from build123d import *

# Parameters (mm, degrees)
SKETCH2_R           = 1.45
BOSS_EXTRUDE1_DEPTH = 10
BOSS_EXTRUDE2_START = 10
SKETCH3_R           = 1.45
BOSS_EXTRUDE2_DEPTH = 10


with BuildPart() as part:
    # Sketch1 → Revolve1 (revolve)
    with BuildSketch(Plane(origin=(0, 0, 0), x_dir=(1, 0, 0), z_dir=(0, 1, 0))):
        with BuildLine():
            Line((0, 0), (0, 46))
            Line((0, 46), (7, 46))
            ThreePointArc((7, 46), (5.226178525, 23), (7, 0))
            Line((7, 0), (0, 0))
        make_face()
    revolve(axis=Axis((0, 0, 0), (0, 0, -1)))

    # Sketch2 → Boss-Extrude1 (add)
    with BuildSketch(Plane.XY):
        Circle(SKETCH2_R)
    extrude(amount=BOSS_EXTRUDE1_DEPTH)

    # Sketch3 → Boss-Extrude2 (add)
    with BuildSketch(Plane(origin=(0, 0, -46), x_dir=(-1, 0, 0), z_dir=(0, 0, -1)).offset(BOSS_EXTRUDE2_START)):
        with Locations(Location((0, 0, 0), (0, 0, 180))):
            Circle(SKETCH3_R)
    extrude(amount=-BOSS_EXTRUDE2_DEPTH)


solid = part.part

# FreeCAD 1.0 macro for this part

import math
import FreeCAD as App
import Part
import Sketcher

V = App.Vector
Q = App.Units.Quantity

doc = App.newDocument("Part")
params = doc.addObject("Spreadsheet::Sheet", "Params")
for row, (alias, value) in enumerate([
    ("sketch1_radius", "150 mm"),
    ("sketch1_width", "7 mm"),
    ("sketch1_height", "46 mm"),
    ("revolution_angle", "360 deg"),
    ("sketch2_diameter", "2.9 mm"),
    ("pad1_length", "10 mm"),
    ("sketch3_diameter", "2.9 mm"),
    ("pad2_length", "10 mm"),
], start=1):
    params.set(f"A{row}", alias)
    params.set(f"B{row}", "=" + value)
    params.setAlias(f"B{row}", alias)

body = doc.addObject("PartDesign::Body", "Body")

sketch1 = body.newObject("Sketcher::SketchObject", "Sketch")
sketch1.AttachmentSupport = (doc.getObject("XZ_Plane"), [""])
sketch1.MapMode = "FlatFace"
sketch1.addGeometry([
    Part.LineSegment(V(0, -46, 0), V(0, 0, 0)),
    Part.LineSegment(V(0, 0, 0), V(7, 0, 0)),
    Part.ArcOfCircle(Part.Circle(V(155, -23, 0), V(0, 0, 1), 150), math.radians(171.18), math.radians(188.82)),
    Part.LineSegment(V(7, -46, 0), V(0, -46, 0)),
], False)
sketch1.addConstraint([
    Sketcher.Constraint("Coincident", 0, 2, 1, 1),
    Sketcher.Constraint("Coincident", 1, 2, 2, 1),
    Sketcher.Constraint("Coincident", 2, 2, 3, 1),
    Sketcher.Constraint("Coincident", 3, 2, 0, 1),
    Sketcher.Constraint("Vertical", 0),
    Sketcher.Constraint("Horizontal", 1),
    Sketcher.Constraint("Horizontal", 3),
    Sketcher.Constraint("Coincident", 0, 2, -1, 1),
    Sketcher.Constraint("Vertical", 1, 2, 2, 2),
    Sketcher.Constraint("Radius", 2, Q("150 mm")),
    Sketcher.Constraint("DistanceX", 1, 1, 1, 2, Q("7 mm")),
    Sketcher.Constraint("DistanceY", 0, 1, 0, 2, Q("46 mm")),
])
sketch1.setExpression("Constraints[9]", "Params.sketch1_radius")
sketch1.setExpression("Constraints[10]", "Params.sketch1_width")
sketch1.setExpression("Constraints[11]", "Params.sketch1_height")
revolution = body.newObject("PartDesign::Revolution", "Revolution")
revolution.Profile = sketch1
revolution.ReferenceAxis = (sketch1, ["V_Axis"])
revolution.setExpression("Angle", "Params.revolution_angle")

sketch2 = body.newObject("Sketcher::SketchObject", "Sketch001")
sketch2.AttachmentSupport = (doc.getObject("XY_Plane"), [""])
sketch2.MapMode = "FlatFace"
sketch2.addGeometry(Part.Circle(V(0, 0, 0), V(0, 0, 1), 1.4), False)
sketch2.addConstraint([
    Sketcher.Constraint("Coincident", 0, 3, -1, 1),
    Sketcher.Constraint("Diameter", 0, Q("2.9 mm")),
])
sketch2.setExpression("Constraints[1]", "Params.sketch2_diameter")
pad1 = body.newObject("PartDesign::Pad", "Pad")
pad1.Profile = sketch2
pad1.setExpression("Length", "Params.pad1_length")

sketch3 = body.newObject("Sketcher::SketchObject", "Sketch002")
sketch3.AttachmentSupport = (doc.getObject("XY_Plane"), [""])
sketch3.MapMode = "FlatFace"
sketch3.AttachmentOffset = App.Placement(V(0, 0, -56), App.Rotation())
sketch3.addGeometry(Part.Circle(V(0, 0, 0), V(0, 0, 1), 1.4), False)
sketch3.addConstraint([
    Sketcher.Constraint("Coincident", 0, 3, -1, 1),
    Sketcher.Constraint("Diameter", 0, Q("2.9 mm")),
])
sketch3.setExpression("Constraints[1]", "Params.sketch3_diameter")
pad2 = body.newObject("PartDesign::Pad", "Pad001")
pad2.Profile = sketch3
pad2.setExpression("Length", "Params.pad2_length")

doc.recompute()
